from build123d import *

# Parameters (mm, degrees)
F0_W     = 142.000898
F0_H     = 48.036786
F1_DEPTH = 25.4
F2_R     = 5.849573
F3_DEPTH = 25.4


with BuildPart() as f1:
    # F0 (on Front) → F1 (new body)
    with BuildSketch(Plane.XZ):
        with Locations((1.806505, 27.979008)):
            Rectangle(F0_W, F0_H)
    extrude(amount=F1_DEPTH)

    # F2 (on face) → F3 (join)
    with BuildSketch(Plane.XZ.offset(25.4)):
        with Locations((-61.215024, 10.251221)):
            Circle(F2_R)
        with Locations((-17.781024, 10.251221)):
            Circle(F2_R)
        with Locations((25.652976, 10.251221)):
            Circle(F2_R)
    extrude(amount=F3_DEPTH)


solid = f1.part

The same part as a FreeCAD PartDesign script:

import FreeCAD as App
import Part
import Sketcher

V = App.Vector
Q = App.Units.Quantity


def add_polygon(sketch, points):
    """Adds a closed chain of lines whose ends are joined by coincident constraints."""
    first, n = sketch.GeometryCount, len(points)
    for a, b in zip(points, points[1:] + points[:1]):
        sketch.addGeometry(Part.LineSegment(App.Vector(*a, 0), App.Vector(*b, 0)), False)
    for i in range(n):
        sketch.addConstraint(Sketcher.Constraint("Coincident", first + i, 2, first + (i + 1) % n, 1))

doc = App.newDocument("Part")
body = doc.addObject("PartDesign::Body", "Body")

# Sketch on XZ plane
sketch1 = body.newObject("Sketcher::SketchObject", "Sketch")
sketch1.AttachmentSupport = (doc.getObject("XZ_Plane"), [""])
sketch1.MapMode = "FlatFace"
add_polygon(sketch1, [(-69, 52), (-69, 4), (73, 4), (73, 52)])  # lines 0-3
sketch1.addConstraint(Sketcher.Constraint("Vertical", 0))
sketch1.addConstraint(Sketcher.Constraint("Horizontal", 1))
sketch1.addConstraint(Sketcher.Constraint("Vertical", 2))
sketch1.addConstraint(Sketcher.Constraint("Horizontal", 3))
sketch1.addConstraint(Sketcher.Constraint("DistanceX", 1, 1, 1, 2, Q("142.000898 mm")))
sketch1.addConstraint(Sketcher.Constraint("DistanceY", -1, 1, 2, 2, Q("51.997401 mm")))
sketch1.addConstraint(Sketcher.Constraint("DistanceY", 0, 2, 0, 1, Q("48.036786 mm")))
sketch1.addConstraint(Sketcher.Constraint("DistanceX", 0, 2, -1, 1, Q("69.193944 mm")))
pad1 = body.newObject("PartDesign::Pad", "Pad")
pad1.Profile = sketch1
pad1.Length = Q("1 in")

# Sketch on XZ plane
sketch2 = body.newObject("Sketcher::SketchObject", "Sketch001")
sketch2.AttachmentSupport = (doc.getObject("XZ_Plane"), [""])
sketch2.MapMode = "FlatFace"
sketch2.AttachmentOffset = App.Placement(V(0, 0, 1 * 25.4), App.Rotation())
sketch2.addGeometry(Part.Circle(V(-61, 10, 0), V(0, 0, 1), 6), False)
sketch2.addGeometry(Part.Circle(V(-18, 10, 0), V(0, 0, 1), 6), False)
sketch2.addGeometry(Part.Circle(V(26, 10, 0), V(0, 0, 1), 6), False)
sketch2.addConstraint(Sketcher.Constraint("Equal", 0, 1))
sketch2.addConstraint(Sketcher.Constraint("Equal", 1, 2))
sketch2.addConstraint(Sketcher.Constraint("Horizontal", 0, 3, 1, 3))
sketch2.addConstraint(Sketcher.Constraint("Horizontal", 1, 3, 2, 3))
sketch2.addConstraint(Sketcher.Constraint("DistanceX", 0, 3, 1, 3, Q("1.71 in")))
sketch2.addConstraint(Sketcher.Constraint("DistanceX", 1, 3, 2, 3, Q("1.71 in")))
sketch2.addConstraint(Sketcher.Constraint("Diameter", 0, Q("11.699146 mm")))
sketch2.addConstraint(Sketcher.Constraint("DistanceY", -1, 1, 0, 3, Q("10.251221 mm")))
sketch2.addConstraint(Sketcher.Constraint("DistanceX", 0, 3, -1, 1, Q("61.215024 mm")))
pad2 = body.newObject("PartDesign::Pad", "Pad001")
pad2.Profile = sketch2
pad2.Length = Q("1 in")

doc.recompute()
